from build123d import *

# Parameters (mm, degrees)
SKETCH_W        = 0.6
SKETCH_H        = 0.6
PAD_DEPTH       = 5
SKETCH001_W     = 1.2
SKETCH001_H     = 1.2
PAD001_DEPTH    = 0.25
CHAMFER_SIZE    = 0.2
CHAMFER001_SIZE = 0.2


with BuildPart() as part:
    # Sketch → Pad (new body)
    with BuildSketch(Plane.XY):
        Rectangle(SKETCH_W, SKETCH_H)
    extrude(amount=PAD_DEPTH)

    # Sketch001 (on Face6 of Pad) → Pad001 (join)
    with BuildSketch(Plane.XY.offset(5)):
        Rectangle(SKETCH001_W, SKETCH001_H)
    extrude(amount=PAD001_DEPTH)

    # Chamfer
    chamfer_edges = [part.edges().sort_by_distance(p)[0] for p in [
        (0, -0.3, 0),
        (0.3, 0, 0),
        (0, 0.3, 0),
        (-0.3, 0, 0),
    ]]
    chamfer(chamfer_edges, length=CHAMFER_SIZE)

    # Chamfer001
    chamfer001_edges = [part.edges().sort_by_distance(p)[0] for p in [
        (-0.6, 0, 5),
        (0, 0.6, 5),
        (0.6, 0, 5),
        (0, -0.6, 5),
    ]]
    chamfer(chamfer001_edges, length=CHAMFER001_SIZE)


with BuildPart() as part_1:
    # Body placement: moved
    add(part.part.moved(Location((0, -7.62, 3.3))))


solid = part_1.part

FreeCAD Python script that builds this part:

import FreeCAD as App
import Part
import Sketcher


def edges_at(feature, points):
    """Names of the edges that pass closest to the given points."""
    edges = feature.Shape.Edges
    near = lambda p: min(range(len(edges)), key=lambda i: edges[i].distToShape(Part.Vertex(*p))[0])
    return sorted({f"Edge{near(p) + 1}" for p in points})

doc = App.newDocument("Part")
body = doc.addObject("PartDesign::Body", "Body")

sketch1 = body.newObject("Sketcher::SketchObject", "Sketch")
sketch1.AttachmentSupport = (doc.getObject("XY_Plane"), [""])
sketch1.MapMode = "FlatFace"
sketch1.addGeometry(Part.LineSegment(App.Vector(-0.3, 0.3, 0), App.Vector(-0.3, -0.3, 0)), False)
sketch1.addGeometry(Part.LineSegment(App.Vector(-0.3, -0.3, 0), App.Vector(0.3, -0.3, 0)), False)
sketch1.addGeometry(Part.LineSegment(App.Vector(0.3, -0.3, 0), App.Vector(0.3, 0.3, 0)), False)
sketch1.addGeometry(Part.LineSegment(App.Vector(0.3, 0.3, 0), App.Vector(-0.3, 0.3, 0)), False)
sketch1.addConstraint(Sketcher.Constraint("Coincident", 0, 2, 1, 1))
sketch1.addConstraint(Sketcher.Constraint("Coincident", 1, 2, 2, 1))
sketch1.addConstraint(Sketcher.Constraint("Coincident", 2, 2, 3, 1))
sketch1.addConstraint(Sketcher.Constraint("Coincident", 3, 2, 0, 1))
sketch1.addConstraint(Sketcher.Constraint("Vertical", 0))
sketch1.addConstraint(Sketcher.Constraint("Horizontal", 1))
sketch1.addConstraint(Sketcher.Constraint("Vertical", 2))
sketch1.addConstraint(Sketcher.Constraint("Horizontal", 3))
sketch1.addConstraint(Sketcher.Constraint("Symmetric", 0, 2, 2, 2, -1, 1))
sketch1.addConstraint(Sketcher.Constraint("Equal", 3, 0))
sketch1.addConstraint(Sketcher.Constraint("DistanceX", 1, 1, 1, 2, 0.6))
pad1 = body.newObject("PartDesign::Pad", "Pad")
pad1.Profile = sketch1
pad1.Length = 5

sketch2 = body.newObject("Sketcher::SketchObject", "Sketch001")
sketch2.AttachmentSupport = (doc.getObject("XY_Plane"), [""])
sketch2.MapMode = "FlatFace"
sketch2.AttachmentOffset = App.Placement(App.Vector(0, 0, 5), App.Rotation())
sketch2.addGeometry(Part.LineSegment(App.Vector(-0.6, 0.6, 0), App.Vector(-0.6, -0.6, 0)), False)
sketch2.addGeometry(Part.LineSegment(App.Vector(-0.6, -0.6, 0), App.Vector(0.6, -0.6, 0)), False)
sketch2.addGeometry(Part.LineSegment(App.Vector(0.6, -0.6, 0), App.Vector(0.6, 0.6, 0)), False)
sketch2.addGeometry(Part.LineSegment(App.Vector(0.6, 0.6, 0), App.Vector(-0.6, 0.6, 0)), False)
sketch2.addConstraint(Sketcher.Constraint("Coincident", 0, 2, 1, 1))
sketch2.addConstraint(Sketcher.Constraint("Coincident", 1, 2, 2, 1))
sketch2.addConstraint(Sketcher.Constraint("Coincident", 2, 2, 3, 1))
sketch2.addConstraint(Sketcher.Constraint("Coincident", 3, 2, 0, 1))
sketch2.addConstraint(Sketcher.Constraint("Vertical", 0))
sketch2.addConstraint(Sketcher.Constraint("Horizontal", 1))
sketch2.addConstraint(Sketcher.Constraint("Vertical", 2))
sketch2.addConstraint(Sketcher.Constraint("Horizontal", 3))
sketch2.addConstraint(Sketcher.Constraint("Symmetric", 0, 2, 2, 2, -1, 1))
sketch2.addConstraint(Sketcher.Constraint("Equal", 3, 0))
sketch2.addConstraint(Sketcher.Constraint("DistanceX", 1, 1, 1, 2, 1.2))
pad2 = body.newObject("PartDesign::Pad", "Pad001")
pad2.Profile = sketch2
pad2.Length = 0.25
doc.recompute()

chamfer = body.newObject("PartDesign::Chamfer", "Chamfer")
chamfer.Base = (pad2, edges_at(pad2, [
    (0, -0.3, 0),
    (0.3, 0, 0),
    (0, 0.3, 0),
    (-0.3, 0, 0),
]))
chamfer.Size = 0.2
doc.recompute()

chamfer2 = body.newObject("PartDesign::Chamfer", "Chamfer001")
chamfer2.Base = (chamfer, edges_at(chamfer, [
    (-0.6, 0, 5),
    (0, 0.6, 5),
    (0.6, 0, 5),
    (0, -0.6, 5),
]))
chamfer2.Size = 0.2
body2 = doc.addObject("PartDesign::Body", "Body001")
doc.recompute()

body.Placement = App.Placement(App.Vector(0, -7.62, 3.3), App.Rotation(App.Vector(0, 0, 1), 0))
boolean = body2.newObject("PartDesign::Boolean", "Boolean")
boolean.Type = "Fuse"
boolean.addObjects([body])

doc.recompute()
